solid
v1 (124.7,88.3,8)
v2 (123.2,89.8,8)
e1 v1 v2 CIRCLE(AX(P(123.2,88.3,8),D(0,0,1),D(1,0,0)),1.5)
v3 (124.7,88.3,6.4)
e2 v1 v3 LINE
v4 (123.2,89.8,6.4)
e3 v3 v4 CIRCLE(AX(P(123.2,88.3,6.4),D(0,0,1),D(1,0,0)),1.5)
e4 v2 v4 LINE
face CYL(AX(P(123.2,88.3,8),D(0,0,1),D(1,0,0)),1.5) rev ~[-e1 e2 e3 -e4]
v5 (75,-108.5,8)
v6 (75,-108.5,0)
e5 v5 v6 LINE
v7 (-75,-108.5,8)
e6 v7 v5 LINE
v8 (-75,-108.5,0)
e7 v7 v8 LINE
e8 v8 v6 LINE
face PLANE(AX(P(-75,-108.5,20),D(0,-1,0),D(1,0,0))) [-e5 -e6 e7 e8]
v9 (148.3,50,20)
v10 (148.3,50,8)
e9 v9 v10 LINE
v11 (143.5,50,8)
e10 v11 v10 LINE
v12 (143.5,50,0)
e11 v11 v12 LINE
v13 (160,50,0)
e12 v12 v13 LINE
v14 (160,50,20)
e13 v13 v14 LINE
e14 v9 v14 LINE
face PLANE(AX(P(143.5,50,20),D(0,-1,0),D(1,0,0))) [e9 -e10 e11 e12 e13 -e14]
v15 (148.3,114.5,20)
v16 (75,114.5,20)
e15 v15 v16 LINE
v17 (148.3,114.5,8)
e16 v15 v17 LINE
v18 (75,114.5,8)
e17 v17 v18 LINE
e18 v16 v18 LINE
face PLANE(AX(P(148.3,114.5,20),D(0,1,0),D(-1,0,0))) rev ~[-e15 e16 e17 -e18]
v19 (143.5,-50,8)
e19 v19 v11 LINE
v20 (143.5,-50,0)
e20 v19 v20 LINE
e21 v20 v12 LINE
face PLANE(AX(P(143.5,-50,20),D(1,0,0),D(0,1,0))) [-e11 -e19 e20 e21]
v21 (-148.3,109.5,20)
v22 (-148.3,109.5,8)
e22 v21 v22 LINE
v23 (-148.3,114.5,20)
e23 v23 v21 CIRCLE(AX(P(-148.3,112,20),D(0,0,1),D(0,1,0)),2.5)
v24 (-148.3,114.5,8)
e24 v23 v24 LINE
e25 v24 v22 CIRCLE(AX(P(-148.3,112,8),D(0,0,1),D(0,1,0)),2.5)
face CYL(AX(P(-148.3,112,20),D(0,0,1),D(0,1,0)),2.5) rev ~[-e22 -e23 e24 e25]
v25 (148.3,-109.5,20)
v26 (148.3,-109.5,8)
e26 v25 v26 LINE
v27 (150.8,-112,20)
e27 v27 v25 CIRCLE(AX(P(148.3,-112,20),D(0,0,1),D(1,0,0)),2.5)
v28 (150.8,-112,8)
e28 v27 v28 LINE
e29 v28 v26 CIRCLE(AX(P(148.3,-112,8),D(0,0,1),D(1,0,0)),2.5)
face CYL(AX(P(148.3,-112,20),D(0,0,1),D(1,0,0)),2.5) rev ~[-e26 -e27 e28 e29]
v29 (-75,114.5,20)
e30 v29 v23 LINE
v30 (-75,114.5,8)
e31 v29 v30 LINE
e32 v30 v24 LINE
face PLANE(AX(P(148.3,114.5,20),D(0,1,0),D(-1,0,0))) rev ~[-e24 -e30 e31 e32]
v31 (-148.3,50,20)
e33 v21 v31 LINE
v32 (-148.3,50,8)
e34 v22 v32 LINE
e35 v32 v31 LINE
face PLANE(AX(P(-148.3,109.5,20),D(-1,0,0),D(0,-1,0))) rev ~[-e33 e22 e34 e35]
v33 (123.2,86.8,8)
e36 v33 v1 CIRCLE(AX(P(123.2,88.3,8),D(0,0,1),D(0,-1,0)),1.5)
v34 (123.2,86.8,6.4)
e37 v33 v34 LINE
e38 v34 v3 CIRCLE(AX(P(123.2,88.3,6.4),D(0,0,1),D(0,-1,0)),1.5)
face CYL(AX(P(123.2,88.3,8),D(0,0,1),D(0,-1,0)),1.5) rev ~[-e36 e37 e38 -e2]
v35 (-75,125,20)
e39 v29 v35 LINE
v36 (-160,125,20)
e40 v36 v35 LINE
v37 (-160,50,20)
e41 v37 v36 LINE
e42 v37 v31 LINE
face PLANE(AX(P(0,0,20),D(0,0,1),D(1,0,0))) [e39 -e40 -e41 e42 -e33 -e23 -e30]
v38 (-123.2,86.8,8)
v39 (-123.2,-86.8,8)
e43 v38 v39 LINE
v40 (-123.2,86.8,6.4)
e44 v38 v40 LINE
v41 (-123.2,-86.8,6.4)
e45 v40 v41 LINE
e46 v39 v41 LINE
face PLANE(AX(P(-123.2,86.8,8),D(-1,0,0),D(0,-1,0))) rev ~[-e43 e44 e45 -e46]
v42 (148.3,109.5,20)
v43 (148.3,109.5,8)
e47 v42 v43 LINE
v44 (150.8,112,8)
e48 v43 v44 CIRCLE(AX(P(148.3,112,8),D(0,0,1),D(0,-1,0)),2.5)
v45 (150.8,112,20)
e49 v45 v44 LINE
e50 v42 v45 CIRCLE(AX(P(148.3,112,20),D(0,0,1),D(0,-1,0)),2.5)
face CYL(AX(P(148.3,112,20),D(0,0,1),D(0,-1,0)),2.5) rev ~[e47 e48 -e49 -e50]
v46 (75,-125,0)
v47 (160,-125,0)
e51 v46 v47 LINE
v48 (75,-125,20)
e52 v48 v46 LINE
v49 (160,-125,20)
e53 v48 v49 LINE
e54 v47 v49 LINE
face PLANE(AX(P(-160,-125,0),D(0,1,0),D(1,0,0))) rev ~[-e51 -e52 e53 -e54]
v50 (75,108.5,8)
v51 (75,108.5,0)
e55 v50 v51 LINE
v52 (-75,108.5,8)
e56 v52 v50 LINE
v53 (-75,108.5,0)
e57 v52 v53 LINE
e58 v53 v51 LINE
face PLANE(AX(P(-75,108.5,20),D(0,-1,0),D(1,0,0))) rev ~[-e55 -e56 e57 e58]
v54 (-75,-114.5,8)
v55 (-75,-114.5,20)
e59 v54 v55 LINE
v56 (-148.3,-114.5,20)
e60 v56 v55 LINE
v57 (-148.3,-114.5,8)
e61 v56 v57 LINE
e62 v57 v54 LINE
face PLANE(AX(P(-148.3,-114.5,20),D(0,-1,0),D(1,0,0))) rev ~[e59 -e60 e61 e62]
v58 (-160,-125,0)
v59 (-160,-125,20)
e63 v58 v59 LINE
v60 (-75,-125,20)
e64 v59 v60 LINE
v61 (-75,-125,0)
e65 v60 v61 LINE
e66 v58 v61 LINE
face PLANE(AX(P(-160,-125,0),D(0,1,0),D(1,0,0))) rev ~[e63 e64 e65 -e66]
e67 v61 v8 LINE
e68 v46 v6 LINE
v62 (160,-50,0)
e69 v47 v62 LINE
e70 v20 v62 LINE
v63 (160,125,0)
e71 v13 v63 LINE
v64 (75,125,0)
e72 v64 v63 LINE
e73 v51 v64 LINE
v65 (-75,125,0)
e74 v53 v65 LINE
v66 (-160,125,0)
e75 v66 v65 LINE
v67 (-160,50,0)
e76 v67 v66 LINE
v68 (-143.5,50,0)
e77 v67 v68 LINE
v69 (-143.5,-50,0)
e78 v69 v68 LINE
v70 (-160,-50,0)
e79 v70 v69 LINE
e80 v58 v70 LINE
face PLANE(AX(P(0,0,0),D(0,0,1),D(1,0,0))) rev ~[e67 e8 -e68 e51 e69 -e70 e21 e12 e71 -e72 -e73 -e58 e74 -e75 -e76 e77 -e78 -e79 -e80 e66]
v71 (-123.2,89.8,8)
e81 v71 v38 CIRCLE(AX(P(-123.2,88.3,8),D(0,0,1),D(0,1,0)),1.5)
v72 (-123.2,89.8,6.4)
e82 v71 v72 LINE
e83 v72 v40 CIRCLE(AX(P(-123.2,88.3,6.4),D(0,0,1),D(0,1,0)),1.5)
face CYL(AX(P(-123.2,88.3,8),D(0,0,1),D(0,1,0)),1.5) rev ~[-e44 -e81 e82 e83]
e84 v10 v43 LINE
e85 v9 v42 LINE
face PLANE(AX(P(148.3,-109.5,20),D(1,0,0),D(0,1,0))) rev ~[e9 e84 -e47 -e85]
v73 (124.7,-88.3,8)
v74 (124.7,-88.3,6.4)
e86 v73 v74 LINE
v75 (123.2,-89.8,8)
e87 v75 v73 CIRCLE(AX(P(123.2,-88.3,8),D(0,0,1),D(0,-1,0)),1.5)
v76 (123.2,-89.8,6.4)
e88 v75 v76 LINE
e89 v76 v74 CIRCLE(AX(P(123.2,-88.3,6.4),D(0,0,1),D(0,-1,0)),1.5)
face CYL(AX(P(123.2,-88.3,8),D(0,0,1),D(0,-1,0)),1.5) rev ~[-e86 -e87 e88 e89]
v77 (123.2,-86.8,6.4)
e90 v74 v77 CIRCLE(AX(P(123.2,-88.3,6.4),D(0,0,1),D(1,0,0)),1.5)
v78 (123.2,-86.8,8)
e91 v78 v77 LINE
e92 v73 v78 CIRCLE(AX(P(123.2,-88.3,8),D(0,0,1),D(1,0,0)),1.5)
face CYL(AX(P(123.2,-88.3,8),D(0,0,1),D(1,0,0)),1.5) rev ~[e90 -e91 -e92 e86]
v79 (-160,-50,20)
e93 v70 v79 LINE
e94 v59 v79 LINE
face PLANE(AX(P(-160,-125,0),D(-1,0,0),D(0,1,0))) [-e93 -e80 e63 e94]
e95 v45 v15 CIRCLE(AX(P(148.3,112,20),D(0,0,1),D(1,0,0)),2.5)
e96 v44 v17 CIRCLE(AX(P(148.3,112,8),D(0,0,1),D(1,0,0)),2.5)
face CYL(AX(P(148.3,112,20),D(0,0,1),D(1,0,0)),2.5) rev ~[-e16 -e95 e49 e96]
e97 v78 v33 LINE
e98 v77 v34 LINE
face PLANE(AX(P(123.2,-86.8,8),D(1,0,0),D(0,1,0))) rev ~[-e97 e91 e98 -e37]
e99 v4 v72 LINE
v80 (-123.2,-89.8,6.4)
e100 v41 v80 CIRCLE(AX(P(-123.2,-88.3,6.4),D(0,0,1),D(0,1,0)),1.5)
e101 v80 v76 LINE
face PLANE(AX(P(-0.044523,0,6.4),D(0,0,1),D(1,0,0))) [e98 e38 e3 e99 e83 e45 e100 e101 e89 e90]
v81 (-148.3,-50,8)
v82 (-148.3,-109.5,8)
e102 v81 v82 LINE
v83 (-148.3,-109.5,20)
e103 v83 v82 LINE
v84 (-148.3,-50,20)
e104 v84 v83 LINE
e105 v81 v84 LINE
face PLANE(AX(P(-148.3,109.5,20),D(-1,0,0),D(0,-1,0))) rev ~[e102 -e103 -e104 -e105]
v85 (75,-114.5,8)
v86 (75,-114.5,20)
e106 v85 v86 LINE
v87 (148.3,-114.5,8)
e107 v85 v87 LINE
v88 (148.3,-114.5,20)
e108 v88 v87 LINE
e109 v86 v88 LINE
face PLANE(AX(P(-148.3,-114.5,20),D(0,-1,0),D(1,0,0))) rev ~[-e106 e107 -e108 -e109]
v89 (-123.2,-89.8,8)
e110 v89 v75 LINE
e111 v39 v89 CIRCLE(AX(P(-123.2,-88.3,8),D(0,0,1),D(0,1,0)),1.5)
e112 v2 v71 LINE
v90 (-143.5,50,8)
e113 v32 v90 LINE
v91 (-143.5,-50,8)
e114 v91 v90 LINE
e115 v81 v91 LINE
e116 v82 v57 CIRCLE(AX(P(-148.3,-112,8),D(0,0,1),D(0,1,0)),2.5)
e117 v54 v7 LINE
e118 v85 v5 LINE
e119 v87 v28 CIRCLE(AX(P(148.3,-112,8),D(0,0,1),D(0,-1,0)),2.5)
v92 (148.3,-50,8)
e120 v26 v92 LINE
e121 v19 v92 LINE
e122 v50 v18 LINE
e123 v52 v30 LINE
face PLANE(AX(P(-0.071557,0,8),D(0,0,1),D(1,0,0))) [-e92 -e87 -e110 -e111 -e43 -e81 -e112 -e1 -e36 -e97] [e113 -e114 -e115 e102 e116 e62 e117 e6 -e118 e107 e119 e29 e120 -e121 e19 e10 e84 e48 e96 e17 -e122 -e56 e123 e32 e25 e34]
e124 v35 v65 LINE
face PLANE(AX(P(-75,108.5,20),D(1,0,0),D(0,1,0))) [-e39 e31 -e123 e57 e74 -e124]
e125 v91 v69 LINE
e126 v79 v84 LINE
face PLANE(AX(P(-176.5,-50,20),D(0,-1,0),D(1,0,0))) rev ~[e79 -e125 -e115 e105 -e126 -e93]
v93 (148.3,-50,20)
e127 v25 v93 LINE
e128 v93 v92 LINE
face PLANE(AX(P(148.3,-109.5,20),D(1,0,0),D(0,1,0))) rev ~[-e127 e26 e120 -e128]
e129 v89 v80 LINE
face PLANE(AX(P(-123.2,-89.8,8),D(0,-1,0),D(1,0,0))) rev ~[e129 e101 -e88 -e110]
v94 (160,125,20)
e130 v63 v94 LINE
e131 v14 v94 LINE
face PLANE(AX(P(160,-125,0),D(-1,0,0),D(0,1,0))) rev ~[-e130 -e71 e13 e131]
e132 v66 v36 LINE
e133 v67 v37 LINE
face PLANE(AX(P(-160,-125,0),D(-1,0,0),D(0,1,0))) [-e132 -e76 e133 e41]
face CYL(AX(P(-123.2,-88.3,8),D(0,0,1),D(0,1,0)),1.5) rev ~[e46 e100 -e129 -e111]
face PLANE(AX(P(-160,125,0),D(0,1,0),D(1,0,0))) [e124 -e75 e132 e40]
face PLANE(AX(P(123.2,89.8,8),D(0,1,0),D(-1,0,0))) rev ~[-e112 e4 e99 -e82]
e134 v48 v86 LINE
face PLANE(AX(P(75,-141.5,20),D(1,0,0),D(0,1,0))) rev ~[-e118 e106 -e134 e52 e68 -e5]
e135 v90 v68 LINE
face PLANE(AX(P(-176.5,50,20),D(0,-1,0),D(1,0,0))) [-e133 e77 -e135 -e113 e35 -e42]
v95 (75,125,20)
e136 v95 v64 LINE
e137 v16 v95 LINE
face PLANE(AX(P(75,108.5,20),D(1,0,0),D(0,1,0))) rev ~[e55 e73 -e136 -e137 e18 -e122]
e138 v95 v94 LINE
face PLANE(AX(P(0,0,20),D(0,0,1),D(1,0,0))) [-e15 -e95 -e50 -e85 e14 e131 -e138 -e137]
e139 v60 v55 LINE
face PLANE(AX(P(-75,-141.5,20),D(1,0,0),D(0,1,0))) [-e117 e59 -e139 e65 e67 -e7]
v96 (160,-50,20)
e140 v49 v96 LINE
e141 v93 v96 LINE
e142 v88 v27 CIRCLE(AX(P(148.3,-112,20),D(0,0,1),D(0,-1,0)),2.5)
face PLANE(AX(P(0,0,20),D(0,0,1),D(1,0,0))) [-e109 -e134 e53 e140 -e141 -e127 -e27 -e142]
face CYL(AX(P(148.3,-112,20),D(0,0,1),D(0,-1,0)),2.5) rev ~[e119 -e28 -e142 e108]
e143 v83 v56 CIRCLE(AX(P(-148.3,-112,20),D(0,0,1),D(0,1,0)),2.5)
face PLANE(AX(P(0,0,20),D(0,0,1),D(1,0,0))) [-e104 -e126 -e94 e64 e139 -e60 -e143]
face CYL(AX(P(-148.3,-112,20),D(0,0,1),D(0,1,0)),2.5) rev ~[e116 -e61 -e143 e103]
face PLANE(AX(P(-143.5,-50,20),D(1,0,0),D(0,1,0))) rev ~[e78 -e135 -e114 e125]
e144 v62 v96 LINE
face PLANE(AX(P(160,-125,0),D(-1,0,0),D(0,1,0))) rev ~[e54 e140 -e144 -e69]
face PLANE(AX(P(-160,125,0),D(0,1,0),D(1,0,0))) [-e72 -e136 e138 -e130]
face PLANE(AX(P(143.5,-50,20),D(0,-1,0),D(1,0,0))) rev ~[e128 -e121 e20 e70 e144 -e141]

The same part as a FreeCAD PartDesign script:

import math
import FreeCAD as App
import Part
import Sketcher
from FreeCAD import Vector


def add_polygon(sketch, points):
    """Adds a closed chain of lines whose ends are joined by coincident constraints."""
    first, n = sketch.GeometryCount, len(points)
    for a, b in zip(points, points[1:] + points[:1]):
        sketch.addGeometry(Part.LineSegment(App.Vector(*a, 0), App.Vector(*b, 0)), False)
    for i in range(n):
        sketch.addConstraint(Sketcher.Constraint("Coincident", first + i, 2, first + (i + 1) % n, 1))

doc = App.newDocument("Part")
body = doc.addObject("PartDesign::Body", "Body")

sketch1 = doc.addObject("Sketcher::SketchObject", "Sketch")
body.addObject(sketch1)
sketch1.AttachmentSupport = (doc.XY_Plane, [""])
sketch1.MapMode = "FlatFace"
add_polygon(sketch1, [(-160, 125), (-160, -125), (160, -125), (160, 125)])
sketch1.addConstraint([
    Sketcher.Constraint("Vertical", 0),
    Sketcher.Constraint("Horizontal", 1),
    Sketcher.Constraint("Vertical", 2),
    Sketcher.Constraint("Horizontal", 3),
    Sketcher.Constraint("Symmetric", 0, 2, 2, 2, -1, 1),
    Sketcher.Constraint("DistanceX", 1, 1, 1, 2, 320.0),
    Sketcher.Constraint("DistanceY", 0, 2, 0, 1, 250.0),
])
pad1 = doc.addObject("PartDesign::Pad", "Pad")
body.addObject(pad1)
pad1.Profile = sketch1
pad1.Length = 20

sketch2 = doc.addObject("Sketcher::SketchObject", "Sketch001")
body.addObject(sketch2)
sketch2.AttachmentSupport = (doc.XY_Plane, [""])
sketch2.MapMode = "FlatFace"
sketch2.AttachmentOffset = App.Placement(Vector(0, 0, 20), App.Rotation())
sketch2.addGeometry([
    Part.LineSegment(Vector(148.3, 114.5, 0), Vector(-148.3, 114.5, 0)),
    Part.ArcOfCircle(Part.Circle(Vector(-148.3, 112, 0), Vector(0, 0, 1), 2.5), math.radians(90), math.radians(270)),
    Part.LineSegment(Vector(-148.3, 109.5, 0), Vector(-148.3, -109.5, 0)),
    Part.ArcOfCircle(Part.Circle(Vector(-148.3, -112, 0), Vector(0, 0, 1), 2.5), math.radians(90), math.radians(270)),
    Part.LineSegment(Vector(-148.3, -114.5, 0), Vector(148.3, -114.5, 0)),
    Part.ArcOfCircle(Part.Circle(Vector(148.3, -112, 0), Vector(0, 0, 1), 2.5), math.radians(-90), math.radians(0)),
    Part.ArcOfCircle(Part.Circle(Vector(148.3, -112, 0), Vector(0, 0, 1), 2.5), math.radians(0), math.radians(90)),
    Part.LineSegment(Vector(148.3, -109.5, 0), Vector(148.3, 109.5, 0)),
    Part.ArcOfCircle(Part.Circle(Vector(148.3, 112, 0), Vector(0, 0, 1), 2.5), math.radians(-90), math.radians(0)),
    Part.ArcOfCircle(Part.Circle(Vector(148.3, 112, 0), Vector(0, 0, 1), 2.5), math.radians(0), math.radians(90)),
], False)
sketch2.addConstraint([
    Sketcher.Constraint("Tangent", 0, 2, 1, 1),
    Sketcher.Constraint("Coincident", 1, 2, 2, 1),
    Sketcher.Constraint("Coincident", 2, 2, 3, 1),
    Sketcher.Constraint("Tangent", 3, 2, 4, 1),
    Sketcher.Constraint("Tangent", 4, 2, 5, 1),
    Sketcher.Constraint("Tangent", 5, 2, 6, 1),
    Sketcher.Constraint("Coincident", 6, 2, 7, 1),
    Sketcher.Constraint("Coincident", 7, 2, 8, 1),
    Sketcher.Constraint("Tangent", 8, 2, 9, 1),
    Sketcher.Constraint("Tangent", 9, 2, 0, 1),
    Sketcher.Constraint("Horizontal", 0),
    Sketcher.Constraint("Vertical", 2),
    Sketcher.Constraint("Horizontal", 4),
    Sketcher.Constraint("Vertical", 7),
    Sketcher.Constraint("Equal", 1, 3),
    Sketcher.Constraint("Equal", 3, 5),
    Sketcher.Constraint("Equal", 5, 6),
    Sketcher.Constraint("Equal", 6, 8),
    Sketcher.Constraint("Equal", 8, 9),
    Sketcher.Constraint("Symmetric", 1, 3, 5, 3, -1, 1),
    Sketcher.Constraint("Symmetric", 5, 2, 8, 2, -1),
    Sketcher.Constraint("Horizontal", 6, 3, 5, 2),
    Sketcher.Constraint("Vertical", 1, 3, 3, 3),
    Sketcher.Constraint("Vertical", 0, 2, 1, 2),
    Sketcher.Constraint("Vertical", 4, 2, 6, 2),
    Sketcher.Constraint("Radius", 1, 2.5),
    Sketcher.Constraint("DistanceY", 2, 2, 2, 1, 219.0),
    Sketcher.Constraint("DistanceX", 0, 2, 0, 1, 296.6),
])
pocket1 = doc.addObject("PartDesign::Pocket", "Pocket")
body.addObject(pocket1)
pocket1.Profile = sketch2
pocket1.Length = 12

sketch3 = doc.addObject("Sketcher::SketchObject", "Sketch002")
body.addObject(sketch3)
sketch3.AttachmentSupport = (doc.XY_Plane, [""])
sketch3.MapMode = "FlatFace"
sketch3.AttachmentOffset = App.Placement(Vector(0, 0, 8), App.Rotation())
sketch3.addGeometry([
    Part.LineSegment(Vector(123.2, 89.8, 0), Vector(-123.2, 89.8, 0)),
    Part.ArcOfCircle(Part.Circle(Vector(-123.2, 88.3, 0), Vector(0, 0, 1), 1.5), math.radians(90), math.radians(270)),
    Part.LineSegment(Vector(-123.2, 86.8, 0), Vector(-123.2, -86.8, 0)),
    Part.ArcOfCircle(Part.Circle(Vector(-123.2, -88.3, 0), Vector(0, 0, 1), 1.5), math.radians(90), math.radians(270)),
    Part.LineSegment(Vector(-123.2, -89.8, 0), Vector(123.2, -89.8, 0)),
    Part.ArcOfCircle(Part.Circle(Vector(123.2, -88.3, 0), Vector(0, 0, 1), 1.5), math.radians(-90), math.radians(0)),
    Part.ArcOfCircle(Part.Circle(Vector(123.2, -88.3, 0), Vector(0, 0, 1), 1.5), math.radians(0), math.radians(90)),
    Part.LineSegment(Vector(123.2, -86.8, 0), Vector(123.2, 86.8, 0)),
    Part.ArcOfCircle(Part.Circle(Vector(123.2, 88.3, 0), Vector(0, 0, 1), 1.5), math.radians(-90), math.radians(0)),
    Part.ArcOfCircle(Part.Circle(Vector(123.2, 88.3, 0), Vector(0, 0, 1), 1.5), math.radians(0), math.radians(90)),
], False)
sketch3.addConstraint([
    Sketcher.Constraint("Tangent", 0, 2, 1, 1),
    Sketcher.Constraint("Coincident", 1, 2, 2, 1),
    Sketcher.Constraint("Coincident", 2, 2, 3, 1),
    Sketcher.Constraint("Tangent", 3, 2, 4, 1),
    Sketcher.Constraint("Tangent", 4, 2, 5, 1),
    Sketcher.Constraint("Tangent", 5, 2, 6, 1),
    Sketcher.Constraint("Coincident", 6, 2, 7, 1),
    Sketcher.Constraint("Coincident", 7, 2, 8, 1),
    Sketcher.Constraint("Tangent", 8, 2, 9, 1),
    Sketcher.Constraint("Tangent", 9, 2, 0, 1),
    Sketcher.Constraint("Horizontal", 0),
    Sketcher.Constraint("Vertical", 2),
    Sketcher.Constraint("Horizontal", 4),
    Sketcher.Constraint("Vertical", 7),
    Sketcher.Constraint("Equal", 1, 3),
    Sketcher.Constraint("Equal", 3, 5),
    Sketcher.Constraint("Equal", 5, 6),
    Sketcher.Constraint("Equal", 6, 8),
    Sketcher.Constraint("Equal", 8, 9),
    Sketcher.Constraint("Symmetric", 1, 3, 5, 3, -1, 1),
    Sketcher.Constraint("Symmetric", 5, 2, 8, 2, -1),
    Sketcher.Constraint("Horizontal", 6, 3, 5, 2),
    Sketcher.Constraint("Vertical", 1, 3, 3, 3),
    Sketcher.Constraint("Vertical", 0, 2, 1, 2),
    Sketcher.Constraint("Vertical", 4, 2, 6, 2),
    Sketcher.Constraint("Radius", 1, 1.5),
    Sketcher.Constraint("DistanceX", 0, 2, 0, 1, 246.4),
    Sketcher.Constraint("DistanceY", 2, 2, 2, 1, 173.6),
])
pocket2 = doc.addObject("PartDesign::Pocket", "Pocket001")
body.addObject(pocket2)
pocket2.Profile = sketch3
pocket2.Length = 1.6

sketch4 = doc.addObject("Sketcher::SketchObject", "Sketch003")
body.addObject(sketch4)
sketch4.AttachmentSupport = (doc.XY_Plane, [""])
sketch4.MapMode = "FlatFace"
sketch4.AttachmentOffset = App.Placement(Vector(0, 0, 20), App.Rotation())
add_polygon(sketch4, [(-176.5, 50), (-176.5, -50), (-143.5, -50), (-143.5, 50)])
add_polygon(sketch4, [(-75, 141.5), (-75, 108.5), (75, 108.5), (75, 141.5)])
add_polygon(sketch4, [(143.5, 50), (143.5, -50), (176.5, -50), (176.5, 50)])
add_polygon(sketch4, [(-75, -108.5), (-75, -141.5), (75, -141.5), (75, -108.5)])
sketch4.addConstraint([
    Sketcher.Constraint("Vertical", 0),
    Sketcher.Constraint("Horizontal", 1),
    Sketcher.Constraint("Vertical", 2),
    Sketcher.Constraint("Horizontal", 3),
    Sketcher.Constraint("Vertical", 4),
    Sketcher.Constraint("Horizontal", 5),
    Sketcher.Constraint("Vertical", 6),
    Sketcher.Constraint("Horizontal", 7),
    Sketcher.Constraint("Vertical", 8),
    Sketcher.Constraint("Horizontal", 9),
    Sketcher.Constraint("Vertical", 10),
    Sketcher.Constraint("Horizontal", 11),
    Sketcher.Constraint("Vertical", 12),
    Sketcher.Constraint("Horizontal", 13),
    Sketcher.Constraint("Vertical", 14),
    Sketcher.Constraint("Horizontal", 15),
    Sketcher.Constraint("Symmetric", 2, 2, 8, 2, -1, 1),
    Sketcher.Constraint("Symmetric", 0, 2, 10, 2, -1, 1),
    Sketcher.Constraint("Symmetric", 6, 2, 12, 2, -1, 1),
    Sketcher.Constraint("Symmetric", 4, 2, 14, 2, -1, 1),
    Sketcher.Constraint("Horizontal", 1, 2, 8, 2),
    Sketcher.Constraint("Vertical", 7, 2, 12, 2),
    Sketcher.Constraint("Equal", 11, 4),
    Sketcher.Constraint("DistanceX", 1, 1, 1, 2, 33.0),
    Sketcher.Constraint("DistanceX", 5, 1, 5, 2, 150.0),
    Sketcher.Constraint("DistanceY", 0, 2, 0, 1, 100.0),
    Sketcher.Constraint("DistanceX", 1, 2, 8, 2, 287.0),
    Sketcher.Constraint("DistanceY", -1, 1, 4, 2, 108.5),
])
pocket3 = doc.addObject("PartDesign::Pocket", "Pocket002")
body.addObject(pocket3)
pocket3.Profile = sketch4
pocket3.Type = "ThroughAll"

doc.recompute()
